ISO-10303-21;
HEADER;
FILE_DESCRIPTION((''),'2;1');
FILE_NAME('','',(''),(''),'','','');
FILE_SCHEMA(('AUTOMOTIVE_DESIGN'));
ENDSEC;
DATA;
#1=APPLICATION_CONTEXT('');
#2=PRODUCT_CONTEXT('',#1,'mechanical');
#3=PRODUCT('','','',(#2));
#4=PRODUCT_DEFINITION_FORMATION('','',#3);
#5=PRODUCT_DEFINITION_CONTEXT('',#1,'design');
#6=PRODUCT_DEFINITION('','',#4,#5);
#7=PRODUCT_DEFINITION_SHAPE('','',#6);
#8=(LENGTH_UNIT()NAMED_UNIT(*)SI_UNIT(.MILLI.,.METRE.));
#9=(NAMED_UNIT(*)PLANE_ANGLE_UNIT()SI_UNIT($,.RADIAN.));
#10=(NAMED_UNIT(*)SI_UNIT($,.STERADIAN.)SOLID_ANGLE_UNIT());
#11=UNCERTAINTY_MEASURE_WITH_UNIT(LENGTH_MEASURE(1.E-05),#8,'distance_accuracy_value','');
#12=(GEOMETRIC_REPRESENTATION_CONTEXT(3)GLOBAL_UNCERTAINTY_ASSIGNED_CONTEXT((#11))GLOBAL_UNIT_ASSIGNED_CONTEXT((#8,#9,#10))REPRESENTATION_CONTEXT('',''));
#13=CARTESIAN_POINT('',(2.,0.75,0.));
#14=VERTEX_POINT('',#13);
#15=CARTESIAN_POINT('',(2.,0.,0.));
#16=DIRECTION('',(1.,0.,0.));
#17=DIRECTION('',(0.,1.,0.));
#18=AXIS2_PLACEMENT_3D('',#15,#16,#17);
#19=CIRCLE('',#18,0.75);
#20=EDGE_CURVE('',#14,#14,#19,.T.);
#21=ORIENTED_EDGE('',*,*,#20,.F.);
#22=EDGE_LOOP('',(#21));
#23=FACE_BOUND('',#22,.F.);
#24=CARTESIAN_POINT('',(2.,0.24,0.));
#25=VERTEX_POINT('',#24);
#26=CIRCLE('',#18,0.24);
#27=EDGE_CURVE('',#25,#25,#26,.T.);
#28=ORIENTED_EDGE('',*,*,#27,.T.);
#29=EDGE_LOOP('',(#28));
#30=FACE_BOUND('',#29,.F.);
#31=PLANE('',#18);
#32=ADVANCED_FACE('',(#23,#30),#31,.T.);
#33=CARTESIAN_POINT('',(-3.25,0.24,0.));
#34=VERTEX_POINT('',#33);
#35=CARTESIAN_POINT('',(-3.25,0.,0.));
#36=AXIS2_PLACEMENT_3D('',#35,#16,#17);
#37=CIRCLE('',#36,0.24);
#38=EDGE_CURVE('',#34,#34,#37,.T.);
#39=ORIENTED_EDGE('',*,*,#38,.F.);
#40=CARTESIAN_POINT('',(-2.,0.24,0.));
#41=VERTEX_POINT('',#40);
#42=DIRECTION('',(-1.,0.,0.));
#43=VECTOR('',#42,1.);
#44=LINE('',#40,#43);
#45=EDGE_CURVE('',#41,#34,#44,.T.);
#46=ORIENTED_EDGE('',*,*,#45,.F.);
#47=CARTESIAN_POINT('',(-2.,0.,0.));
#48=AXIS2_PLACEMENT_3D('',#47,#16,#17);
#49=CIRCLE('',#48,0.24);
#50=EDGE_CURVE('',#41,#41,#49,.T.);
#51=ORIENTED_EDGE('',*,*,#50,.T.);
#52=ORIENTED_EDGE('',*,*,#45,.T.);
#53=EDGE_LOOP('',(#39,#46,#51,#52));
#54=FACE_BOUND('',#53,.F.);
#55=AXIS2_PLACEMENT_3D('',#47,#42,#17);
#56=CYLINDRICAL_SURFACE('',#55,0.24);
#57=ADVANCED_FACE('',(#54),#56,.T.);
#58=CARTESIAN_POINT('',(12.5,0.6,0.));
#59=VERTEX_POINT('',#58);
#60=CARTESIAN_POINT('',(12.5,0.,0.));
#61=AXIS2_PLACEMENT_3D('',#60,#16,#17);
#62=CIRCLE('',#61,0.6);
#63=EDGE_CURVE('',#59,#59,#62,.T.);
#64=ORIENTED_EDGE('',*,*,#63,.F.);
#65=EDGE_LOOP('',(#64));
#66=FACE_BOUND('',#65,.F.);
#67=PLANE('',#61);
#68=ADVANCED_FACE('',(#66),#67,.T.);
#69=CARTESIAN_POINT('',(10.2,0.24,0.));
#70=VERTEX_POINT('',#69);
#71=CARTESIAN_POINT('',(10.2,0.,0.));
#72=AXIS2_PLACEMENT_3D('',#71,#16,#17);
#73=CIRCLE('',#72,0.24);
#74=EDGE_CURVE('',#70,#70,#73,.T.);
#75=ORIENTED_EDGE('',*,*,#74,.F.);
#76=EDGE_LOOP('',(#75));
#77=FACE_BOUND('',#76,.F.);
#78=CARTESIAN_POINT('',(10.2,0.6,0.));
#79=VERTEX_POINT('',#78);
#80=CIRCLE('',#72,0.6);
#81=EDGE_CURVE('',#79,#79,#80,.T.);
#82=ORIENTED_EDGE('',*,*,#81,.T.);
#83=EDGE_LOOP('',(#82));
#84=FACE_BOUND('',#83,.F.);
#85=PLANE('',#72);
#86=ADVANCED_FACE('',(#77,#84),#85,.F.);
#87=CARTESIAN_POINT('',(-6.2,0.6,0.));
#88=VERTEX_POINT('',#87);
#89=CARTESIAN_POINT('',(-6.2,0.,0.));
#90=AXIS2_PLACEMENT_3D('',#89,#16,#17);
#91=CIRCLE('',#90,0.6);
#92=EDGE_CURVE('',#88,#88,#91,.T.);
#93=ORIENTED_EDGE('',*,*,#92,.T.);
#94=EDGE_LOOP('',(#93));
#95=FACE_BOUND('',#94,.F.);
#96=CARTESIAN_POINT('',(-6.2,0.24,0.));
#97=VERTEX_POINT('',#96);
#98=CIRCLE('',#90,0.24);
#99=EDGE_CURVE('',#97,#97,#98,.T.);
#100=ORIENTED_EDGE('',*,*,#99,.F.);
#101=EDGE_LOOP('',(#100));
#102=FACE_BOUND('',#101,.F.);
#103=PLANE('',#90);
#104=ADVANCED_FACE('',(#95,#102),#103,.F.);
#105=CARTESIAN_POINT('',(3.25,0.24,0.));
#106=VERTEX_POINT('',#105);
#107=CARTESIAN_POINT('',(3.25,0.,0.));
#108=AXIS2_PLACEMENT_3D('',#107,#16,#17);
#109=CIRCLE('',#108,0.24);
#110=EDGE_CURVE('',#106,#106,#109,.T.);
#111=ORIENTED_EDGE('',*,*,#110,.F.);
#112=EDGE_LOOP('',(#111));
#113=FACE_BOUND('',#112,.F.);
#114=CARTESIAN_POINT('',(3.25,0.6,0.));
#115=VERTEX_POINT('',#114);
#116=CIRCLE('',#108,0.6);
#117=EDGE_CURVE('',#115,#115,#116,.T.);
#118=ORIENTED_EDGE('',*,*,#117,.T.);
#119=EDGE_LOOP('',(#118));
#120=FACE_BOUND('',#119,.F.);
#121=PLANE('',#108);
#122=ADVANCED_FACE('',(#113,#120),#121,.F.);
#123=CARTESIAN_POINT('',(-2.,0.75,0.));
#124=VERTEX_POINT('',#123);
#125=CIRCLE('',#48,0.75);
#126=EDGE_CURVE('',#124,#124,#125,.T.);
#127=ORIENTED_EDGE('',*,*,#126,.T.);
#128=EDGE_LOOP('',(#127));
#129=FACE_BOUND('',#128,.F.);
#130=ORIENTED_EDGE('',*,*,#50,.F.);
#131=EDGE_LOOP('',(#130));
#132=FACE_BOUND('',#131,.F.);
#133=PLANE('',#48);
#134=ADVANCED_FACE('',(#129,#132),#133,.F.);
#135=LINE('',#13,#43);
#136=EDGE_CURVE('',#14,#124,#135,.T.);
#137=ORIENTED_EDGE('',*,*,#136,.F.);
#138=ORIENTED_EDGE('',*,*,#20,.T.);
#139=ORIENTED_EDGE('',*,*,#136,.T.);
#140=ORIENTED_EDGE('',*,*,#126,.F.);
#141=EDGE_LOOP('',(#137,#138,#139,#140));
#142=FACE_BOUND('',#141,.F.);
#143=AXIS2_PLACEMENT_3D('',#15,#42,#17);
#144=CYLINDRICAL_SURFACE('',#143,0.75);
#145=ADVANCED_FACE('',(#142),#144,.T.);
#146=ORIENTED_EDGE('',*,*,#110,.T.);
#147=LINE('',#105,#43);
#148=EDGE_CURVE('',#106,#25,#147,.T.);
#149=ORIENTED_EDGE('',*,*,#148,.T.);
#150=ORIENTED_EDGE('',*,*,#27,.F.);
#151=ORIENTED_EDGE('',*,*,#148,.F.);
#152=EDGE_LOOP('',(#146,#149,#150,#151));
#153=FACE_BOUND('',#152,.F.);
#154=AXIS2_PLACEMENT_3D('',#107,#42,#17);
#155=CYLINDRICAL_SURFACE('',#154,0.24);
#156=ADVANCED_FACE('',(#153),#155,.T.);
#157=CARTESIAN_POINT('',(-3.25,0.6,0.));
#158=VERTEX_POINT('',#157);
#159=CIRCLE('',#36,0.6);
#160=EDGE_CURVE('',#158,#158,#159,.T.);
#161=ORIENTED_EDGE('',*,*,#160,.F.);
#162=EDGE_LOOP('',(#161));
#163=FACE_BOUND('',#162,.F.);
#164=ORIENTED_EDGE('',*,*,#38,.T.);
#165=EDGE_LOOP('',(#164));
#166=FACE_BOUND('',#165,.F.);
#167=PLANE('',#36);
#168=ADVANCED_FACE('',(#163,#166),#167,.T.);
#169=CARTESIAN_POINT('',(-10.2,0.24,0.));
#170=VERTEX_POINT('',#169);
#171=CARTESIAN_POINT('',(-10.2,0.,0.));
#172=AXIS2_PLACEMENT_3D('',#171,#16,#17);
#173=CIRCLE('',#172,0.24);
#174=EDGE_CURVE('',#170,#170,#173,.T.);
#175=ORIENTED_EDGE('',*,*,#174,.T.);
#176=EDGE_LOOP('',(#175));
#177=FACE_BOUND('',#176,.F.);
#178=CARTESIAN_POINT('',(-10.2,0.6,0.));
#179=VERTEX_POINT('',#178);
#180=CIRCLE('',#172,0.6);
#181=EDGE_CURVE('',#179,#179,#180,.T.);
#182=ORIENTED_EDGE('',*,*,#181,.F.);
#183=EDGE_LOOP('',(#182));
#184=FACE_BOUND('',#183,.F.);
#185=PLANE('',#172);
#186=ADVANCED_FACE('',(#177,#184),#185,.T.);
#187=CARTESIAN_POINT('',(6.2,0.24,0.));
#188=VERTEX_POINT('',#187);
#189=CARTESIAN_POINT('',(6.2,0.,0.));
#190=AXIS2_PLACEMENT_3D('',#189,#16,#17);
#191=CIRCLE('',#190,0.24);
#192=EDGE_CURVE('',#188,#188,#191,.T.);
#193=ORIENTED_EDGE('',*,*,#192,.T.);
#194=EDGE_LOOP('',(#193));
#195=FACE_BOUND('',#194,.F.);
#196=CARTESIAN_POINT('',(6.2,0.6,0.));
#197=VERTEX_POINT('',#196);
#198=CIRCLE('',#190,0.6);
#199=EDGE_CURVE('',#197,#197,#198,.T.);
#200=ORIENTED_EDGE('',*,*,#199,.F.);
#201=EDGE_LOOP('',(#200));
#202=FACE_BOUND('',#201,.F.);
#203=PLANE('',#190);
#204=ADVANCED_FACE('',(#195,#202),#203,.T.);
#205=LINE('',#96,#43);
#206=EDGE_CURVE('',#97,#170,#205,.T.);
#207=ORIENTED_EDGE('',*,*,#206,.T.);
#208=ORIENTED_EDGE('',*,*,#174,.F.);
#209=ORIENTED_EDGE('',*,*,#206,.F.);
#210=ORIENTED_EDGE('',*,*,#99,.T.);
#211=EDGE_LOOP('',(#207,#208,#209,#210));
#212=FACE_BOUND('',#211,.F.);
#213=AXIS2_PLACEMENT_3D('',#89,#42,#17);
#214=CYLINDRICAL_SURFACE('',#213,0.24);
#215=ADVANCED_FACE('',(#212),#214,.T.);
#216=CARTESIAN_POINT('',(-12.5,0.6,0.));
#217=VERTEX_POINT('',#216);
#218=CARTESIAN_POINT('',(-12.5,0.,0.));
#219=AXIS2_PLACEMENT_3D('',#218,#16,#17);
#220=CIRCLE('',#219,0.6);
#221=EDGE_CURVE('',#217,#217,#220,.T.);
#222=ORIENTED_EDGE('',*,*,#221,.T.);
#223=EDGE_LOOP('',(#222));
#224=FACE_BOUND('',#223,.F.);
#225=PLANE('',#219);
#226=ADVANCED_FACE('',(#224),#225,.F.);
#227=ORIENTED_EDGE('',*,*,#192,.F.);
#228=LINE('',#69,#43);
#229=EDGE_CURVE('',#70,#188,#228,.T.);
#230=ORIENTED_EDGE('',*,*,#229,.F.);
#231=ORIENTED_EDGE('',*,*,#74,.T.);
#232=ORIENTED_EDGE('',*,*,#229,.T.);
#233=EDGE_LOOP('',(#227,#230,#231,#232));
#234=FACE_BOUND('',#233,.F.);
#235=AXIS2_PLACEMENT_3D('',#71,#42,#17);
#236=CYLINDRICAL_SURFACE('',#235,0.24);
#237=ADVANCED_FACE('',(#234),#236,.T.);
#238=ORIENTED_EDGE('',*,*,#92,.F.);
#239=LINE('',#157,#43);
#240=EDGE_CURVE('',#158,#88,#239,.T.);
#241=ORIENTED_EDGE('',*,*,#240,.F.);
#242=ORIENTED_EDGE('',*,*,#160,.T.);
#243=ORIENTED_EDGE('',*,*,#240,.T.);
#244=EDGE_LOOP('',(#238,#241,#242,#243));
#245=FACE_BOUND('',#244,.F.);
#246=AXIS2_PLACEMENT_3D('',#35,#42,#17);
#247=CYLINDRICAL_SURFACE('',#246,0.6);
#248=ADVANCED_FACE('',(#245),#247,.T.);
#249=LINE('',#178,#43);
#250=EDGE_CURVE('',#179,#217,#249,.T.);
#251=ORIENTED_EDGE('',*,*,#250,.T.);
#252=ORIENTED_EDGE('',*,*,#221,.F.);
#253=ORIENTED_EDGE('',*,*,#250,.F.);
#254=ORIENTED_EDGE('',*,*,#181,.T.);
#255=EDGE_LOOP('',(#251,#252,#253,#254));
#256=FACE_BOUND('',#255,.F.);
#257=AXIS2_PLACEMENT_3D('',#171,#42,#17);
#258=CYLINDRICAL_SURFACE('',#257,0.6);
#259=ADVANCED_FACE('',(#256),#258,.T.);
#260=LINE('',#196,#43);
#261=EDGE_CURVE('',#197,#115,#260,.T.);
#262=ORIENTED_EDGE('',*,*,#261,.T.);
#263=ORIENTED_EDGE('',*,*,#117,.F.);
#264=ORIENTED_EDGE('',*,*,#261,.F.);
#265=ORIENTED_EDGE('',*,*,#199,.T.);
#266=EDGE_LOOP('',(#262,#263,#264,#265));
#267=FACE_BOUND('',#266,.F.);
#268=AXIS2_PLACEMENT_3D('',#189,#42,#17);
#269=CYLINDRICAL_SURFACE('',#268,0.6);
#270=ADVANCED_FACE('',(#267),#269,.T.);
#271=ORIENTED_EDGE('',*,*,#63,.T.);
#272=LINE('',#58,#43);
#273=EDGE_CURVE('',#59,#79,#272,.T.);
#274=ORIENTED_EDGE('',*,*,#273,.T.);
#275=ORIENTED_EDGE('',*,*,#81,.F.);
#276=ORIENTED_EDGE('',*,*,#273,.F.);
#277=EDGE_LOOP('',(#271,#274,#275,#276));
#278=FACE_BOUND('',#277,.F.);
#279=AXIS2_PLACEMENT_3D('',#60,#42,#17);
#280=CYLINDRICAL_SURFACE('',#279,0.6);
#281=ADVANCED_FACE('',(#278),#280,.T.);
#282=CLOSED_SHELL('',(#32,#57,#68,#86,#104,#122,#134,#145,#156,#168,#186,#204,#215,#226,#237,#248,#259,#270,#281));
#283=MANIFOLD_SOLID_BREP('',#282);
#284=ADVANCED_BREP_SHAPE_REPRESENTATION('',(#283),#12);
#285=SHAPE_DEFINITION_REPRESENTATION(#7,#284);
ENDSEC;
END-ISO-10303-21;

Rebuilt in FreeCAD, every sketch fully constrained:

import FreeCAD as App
import Part
import Sketcher
Q = App.Units.Quantity


def add_polygon(sketch, points):
    """Adds a closed chain of lines whose ends are joined by coincident constraints."""
    first, n = sketch.GeometryCount, len(points)
    for a, b in zip(points, points[1:] + points[:1]):
        sketch.addGeometry(Part.LineSegment(App.Vector(*a, 0), App.Vector(*b, 0)), False)
    for i in range(n):
        sketch.addConstraint(Sketcher.Constraint("Coincident", first + i, 2, first + (i + 1) % n, 1))

doc = App.newDocument("Part")
body = doc.addObject("PartDesign::Body", "Body")

sketch1 = body.newObject("Sketcher::SketchObject", "Sketch")
sketch1.AttachmentSupport = (doc.getObject("XY_Plane"), [""])
sketch1.MapMode = "FlatFace"
add_polygon(sketch1, [(-12.5, 0.6), (-12.5, 0), (12.5, 0), (12.5, 0.6), (10.2, 0.6), (10.2, 0.24), (6.2, 0.24), (6.2, 0.6), (3.25, 0.6), (3.25, 0.24), (2, 0.24), (2, 0.75), (-2, 0.75), (-2, 0.24), (-3.25, 0.24), (-3.25, 0.6), (-6.2, 0.6), (-6.2, 0.24), (-10.2, 0.24), (-10.2, 0.6)])
sketch1.addConstraint(Sketcher.Constraint("Vertical", 0))
sketch1.addConstraint(Sketcher.Constraint("Horizontal", 1))
sketch1.addConstraint(Sketcher.Constraint("Vertical", 2))
sketch1.addConstraint(Sketcher.Constraint("Horizontal", 3))
sketch1.addConstraint(Sketcher.Constraint("Vertical", 4))
sketch1.addConstraint(Sketcher.Constraint("Horizontal", 5))
sketch1.addConstraint(Sketcher.Constraint("Vertical", 6))
sketch1.addConstraint(Sketcher.Constraint("Horizontal", 7))
sketch1.addConstraint(Sketcher.Constraint("Vertical", 8))
sketch1.addConstraint(Sketcher.Constraint("Horizontal", 9))
sketch1.addConstraint(Sketcher.Constraint("Vertical", 10))
sketch1.addConstraint(Sketcher.Constraint("Horizontal", 11))
sketch1.addConstraint(Sketcher.Constraint("Vertical", 12))
sketch1.addConstraint(Sketcher.Constraint("Horizontal", 13))
sketch1.addConstraint(Sketcher.Constraint("Vertical", 14))
sketch1.addConstraint(Sketcher.Constraint("Horizontal", 15))
sketch1.addConstraint(Sketcher.Constraint("Vertical", 16))
sketch1.addConstraint(Sketcher.Constraint("Horizontal", 17))
sketch1.addConstraint(Sketcher.Constraint("Vertical", 18))
sketch1.addConstraint(Sketcher.Constraint("Horizontal", 19))
sketch1.addConstraint(Sketcher.Constraint("Symmetric", 0, 2, 1, 2, -1, 1))
sketch1.addConstraint(Sketcher.Constraint("Symmetric", 9, 2, 12, 2, -2))
sketch1.addConstraint(Sketcher.Constraint("Symmetric", 7, 2, 14, 2, -2))
sketch1.addConstraint(Sketcher.Constraint("Symmetric", 5, 2, 16, 2, -2))
sketch1.addConstraint(Sketcher.Constraint("Symmetric", 3, 2, 18, 2, -2))
sketch1.addConstraint(Sketcher.Constraint("Horizontal", 3, 2, 6, 2))
sketch1.addConstraint(Sketcher.Constraint("Horizontal", 5, 2, 8, 2))
sketch1.addConstraint(Sketcher.Constraint("Equal", 5, 11))
sketch1.addConstraint(Sketcher.Constraint("DistanceX", 1, 1, 1, 2, Q("25 mm")))
sketch1.addConstraint(Sketcher.Constraint("DistanceX", 3, 2, 3, 1, Q("2.3 mm")))
sketch1.addConstraint(Sketcher.Constraint("DistanceX", 5, 2, 1, 2, Q("6.3 mm")))
sketch1.addConstraint(Sketcher.Constraint("DistanceX", 7, 2, 2, 2, Q("9.25 mm")))
sketch1.addConstraint(Sketcher.Constraint("DistanceY", 0, 2, 0, 1, Q("0.6 mm")))
sketch1.addConstraint(Sketcher.Constraint("DistanceY", 4, 2, 4, 1, Q("0.36 mm")))
sketch1.addConstraint(Sketcher.Constraint("DistanceY", 10, 1, 10, 2, Q("0.51 mm")))
revolution = body.newObject("PartDesign::Revolution", "Revolution")
revolution.Profile = sketch1
revolution.ReferenceAxis = (sketch1, ["H_Axis"])
revolution.Angle = 360

doc.recompute()
